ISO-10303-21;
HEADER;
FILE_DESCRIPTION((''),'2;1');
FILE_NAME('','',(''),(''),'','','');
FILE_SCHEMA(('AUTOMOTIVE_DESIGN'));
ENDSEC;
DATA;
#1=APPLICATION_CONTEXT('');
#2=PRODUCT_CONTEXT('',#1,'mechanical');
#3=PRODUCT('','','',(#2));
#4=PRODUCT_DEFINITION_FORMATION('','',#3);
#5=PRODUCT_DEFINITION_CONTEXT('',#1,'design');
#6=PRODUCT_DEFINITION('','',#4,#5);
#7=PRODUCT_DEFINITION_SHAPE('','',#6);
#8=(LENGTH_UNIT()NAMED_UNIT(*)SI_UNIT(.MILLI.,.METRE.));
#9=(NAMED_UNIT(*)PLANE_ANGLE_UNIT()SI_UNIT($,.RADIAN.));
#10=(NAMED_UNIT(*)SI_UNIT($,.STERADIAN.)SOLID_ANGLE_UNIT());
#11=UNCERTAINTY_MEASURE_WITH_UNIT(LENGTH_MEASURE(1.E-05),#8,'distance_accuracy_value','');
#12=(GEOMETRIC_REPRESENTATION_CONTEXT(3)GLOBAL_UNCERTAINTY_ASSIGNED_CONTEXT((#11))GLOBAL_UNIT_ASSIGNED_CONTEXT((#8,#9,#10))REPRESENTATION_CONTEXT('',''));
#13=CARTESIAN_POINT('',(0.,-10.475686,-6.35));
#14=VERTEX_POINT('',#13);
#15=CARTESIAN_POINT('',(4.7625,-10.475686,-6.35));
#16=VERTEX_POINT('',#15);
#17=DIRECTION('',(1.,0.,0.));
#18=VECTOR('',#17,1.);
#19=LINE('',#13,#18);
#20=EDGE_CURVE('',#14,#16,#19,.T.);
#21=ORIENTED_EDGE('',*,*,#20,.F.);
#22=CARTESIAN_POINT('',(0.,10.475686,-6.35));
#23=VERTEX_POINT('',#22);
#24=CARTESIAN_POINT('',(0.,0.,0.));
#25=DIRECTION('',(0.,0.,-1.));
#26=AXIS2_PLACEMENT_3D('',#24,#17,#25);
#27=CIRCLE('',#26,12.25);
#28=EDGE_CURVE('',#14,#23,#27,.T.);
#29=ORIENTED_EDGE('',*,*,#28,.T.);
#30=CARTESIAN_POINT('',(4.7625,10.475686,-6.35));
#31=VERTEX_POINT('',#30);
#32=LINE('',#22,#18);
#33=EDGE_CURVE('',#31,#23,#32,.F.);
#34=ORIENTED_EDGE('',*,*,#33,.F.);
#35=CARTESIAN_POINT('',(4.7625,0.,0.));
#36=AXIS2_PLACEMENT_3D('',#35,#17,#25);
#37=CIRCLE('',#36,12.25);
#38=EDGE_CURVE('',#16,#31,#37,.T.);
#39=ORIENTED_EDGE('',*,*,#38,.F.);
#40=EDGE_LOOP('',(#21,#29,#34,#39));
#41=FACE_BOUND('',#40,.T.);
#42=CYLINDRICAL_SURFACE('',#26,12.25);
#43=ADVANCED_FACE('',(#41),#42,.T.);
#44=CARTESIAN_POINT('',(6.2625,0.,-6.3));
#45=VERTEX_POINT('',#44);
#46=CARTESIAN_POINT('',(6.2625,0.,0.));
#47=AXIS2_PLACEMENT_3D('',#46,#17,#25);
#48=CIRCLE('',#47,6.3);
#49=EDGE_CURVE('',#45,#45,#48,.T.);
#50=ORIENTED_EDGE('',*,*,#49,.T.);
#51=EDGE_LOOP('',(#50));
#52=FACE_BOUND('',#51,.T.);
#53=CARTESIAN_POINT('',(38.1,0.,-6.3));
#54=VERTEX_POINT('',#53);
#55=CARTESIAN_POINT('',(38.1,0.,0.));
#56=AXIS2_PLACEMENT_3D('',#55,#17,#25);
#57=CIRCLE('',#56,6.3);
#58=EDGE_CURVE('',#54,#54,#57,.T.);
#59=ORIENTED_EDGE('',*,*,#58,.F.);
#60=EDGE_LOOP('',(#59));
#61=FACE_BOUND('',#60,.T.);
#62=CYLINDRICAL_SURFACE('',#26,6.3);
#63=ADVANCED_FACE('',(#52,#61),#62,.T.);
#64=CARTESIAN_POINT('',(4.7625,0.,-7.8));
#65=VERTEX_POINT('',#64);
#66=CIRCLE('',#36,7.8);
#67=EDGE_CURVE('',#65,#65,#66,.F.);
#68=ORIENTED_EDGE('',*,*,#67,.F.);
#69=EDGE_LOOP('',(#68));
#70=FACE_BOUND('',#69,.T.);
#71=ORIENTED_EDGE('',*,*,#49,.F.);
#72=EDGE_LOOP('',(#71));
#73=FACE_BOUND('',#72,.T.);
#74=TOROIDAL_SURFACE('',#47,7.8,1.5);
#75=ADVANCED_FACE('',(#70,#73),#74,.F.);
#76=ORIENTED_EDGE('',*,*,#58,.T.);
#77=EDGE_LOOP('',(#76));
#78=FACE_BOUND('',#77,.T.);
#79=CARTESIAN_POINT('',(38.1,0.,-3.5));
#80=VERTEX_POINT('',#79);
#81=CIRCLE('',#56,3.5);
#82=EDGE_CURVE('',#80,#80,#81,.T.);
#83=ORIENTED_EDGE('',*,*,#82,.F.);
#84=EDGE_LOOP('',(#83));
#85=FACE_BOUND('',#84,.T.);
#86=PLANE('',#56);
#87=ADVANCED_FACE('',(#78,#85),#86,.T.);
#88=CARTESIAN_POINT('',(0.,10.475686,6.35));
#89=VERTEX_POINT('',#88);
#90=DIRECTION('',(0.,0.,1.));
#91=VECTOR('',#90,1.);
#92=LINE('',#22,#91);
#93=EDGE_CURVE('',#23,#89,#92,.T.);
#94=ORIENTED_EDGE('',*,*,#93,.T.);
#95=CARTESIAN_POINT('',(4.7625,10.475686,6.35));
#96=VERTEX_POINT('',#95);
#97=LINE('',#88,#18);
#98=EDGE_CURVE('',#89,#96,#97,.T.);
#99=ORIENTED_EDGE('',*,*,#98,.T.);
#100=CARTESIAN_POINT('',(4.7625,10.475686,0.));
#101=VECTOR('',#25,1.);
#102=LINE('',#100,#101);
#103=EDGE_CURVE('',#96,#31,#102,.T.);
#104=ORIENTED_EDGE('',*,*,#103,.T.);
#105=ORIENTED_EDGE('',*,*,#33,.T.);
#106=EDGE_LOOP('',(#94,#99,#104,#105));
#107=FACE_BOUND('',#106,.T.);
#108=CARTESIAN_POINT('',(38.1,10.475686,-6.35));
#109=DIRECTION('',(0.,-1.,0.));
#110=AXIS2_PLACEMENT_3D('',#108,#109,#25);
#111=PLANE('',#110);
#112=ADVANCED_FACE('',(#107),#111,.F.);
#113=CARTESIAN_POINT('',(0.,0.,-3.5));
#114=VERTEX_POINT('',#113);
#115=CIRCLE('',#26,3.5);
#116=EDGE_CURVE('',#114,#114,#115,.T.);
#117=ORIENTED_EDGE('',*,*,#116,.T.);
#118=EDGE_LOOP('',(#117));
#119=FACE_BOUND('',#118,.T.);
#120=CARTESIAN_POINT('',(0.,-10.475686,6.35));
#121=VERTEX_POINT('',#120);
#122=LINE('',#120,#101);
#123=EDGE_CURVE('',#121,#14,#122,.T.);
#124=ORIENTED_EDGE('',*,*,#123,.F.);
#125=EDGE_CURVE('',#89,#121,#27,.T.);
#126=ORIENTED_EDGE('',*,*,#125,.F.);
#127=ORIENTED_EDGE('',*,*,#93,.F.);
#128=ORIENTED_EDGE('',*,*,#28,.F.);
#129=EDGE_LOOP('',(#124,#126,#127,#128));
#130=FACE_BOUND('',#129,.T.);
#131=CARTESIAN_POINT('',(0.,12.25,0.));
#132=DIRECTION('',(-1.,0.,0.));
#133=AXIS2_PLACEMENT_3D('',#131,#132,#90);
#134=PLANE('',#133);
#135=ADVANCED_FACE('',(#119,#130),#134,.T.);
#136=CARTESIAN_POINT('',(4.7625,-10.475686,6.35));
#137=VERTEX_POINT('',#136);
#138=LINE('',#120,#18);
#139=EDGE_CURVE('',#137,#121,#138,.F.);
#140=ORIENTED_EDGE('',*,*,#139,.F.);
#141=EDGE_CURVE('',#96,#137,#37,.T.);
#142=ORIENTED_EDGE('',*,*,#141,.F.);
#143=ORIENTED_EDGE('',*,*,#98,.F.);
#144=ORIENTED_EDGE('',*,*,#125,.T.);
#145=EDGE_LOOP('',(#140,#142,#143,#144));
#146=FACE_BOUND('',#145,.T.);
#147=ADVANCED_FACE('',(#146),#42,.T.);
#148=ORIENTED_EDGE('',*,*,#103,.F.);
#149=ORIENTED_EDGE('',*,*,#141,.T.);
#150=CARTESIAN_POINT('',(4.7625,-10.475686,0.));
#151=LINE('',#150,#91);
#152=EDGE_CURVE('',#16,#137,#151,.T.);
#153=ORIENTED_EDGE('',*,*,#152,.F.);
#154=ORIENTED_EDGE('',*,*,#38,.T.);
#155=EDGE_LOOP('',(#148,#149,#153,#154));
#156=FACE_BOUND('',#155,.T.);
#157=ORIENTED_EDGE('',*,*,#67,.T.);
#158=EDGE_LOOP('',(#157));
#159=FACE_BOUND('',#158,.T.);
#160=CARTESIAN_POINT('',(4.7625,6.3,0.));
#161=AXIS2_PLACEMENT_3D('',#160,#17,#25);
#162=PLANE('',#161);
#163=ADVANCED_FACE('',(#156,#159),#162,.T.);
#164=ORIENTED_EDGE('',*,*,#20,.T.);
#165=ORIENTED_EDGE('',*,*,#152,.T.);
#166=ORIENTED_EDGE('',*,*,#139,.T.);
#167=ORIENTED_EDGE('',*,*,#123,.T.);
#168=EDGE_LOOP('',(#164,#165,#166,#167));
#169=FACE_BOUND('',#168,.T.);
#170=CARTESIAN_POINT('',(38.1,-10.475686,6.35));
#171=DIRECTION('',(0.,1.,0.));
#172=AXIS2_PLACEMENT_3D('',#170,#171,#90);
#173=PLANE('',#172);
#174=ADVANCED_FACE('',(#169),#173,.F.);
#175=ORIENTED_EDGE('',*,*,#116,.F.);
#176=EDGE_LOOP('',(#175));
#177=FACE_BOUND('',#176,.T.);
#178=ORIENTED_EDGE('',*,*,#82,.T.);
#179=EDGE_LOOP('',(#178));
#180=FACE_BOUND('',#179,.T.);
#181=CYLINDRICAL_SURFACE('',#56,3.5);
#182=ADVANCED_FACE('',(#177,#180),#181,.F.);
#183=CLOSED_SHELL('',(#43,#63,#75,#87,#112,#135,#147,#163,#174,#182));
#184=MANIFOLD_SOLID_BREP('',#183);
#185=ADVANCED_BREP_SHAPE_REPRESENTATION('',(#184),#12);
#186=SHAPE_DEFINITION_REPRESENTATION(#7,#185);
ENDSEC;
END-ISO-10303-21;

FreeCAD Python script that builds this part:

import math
import FreeCAD as App
import Part
import Sketcher
from FreeCAD import Vector
Q = App.Units.Quantity


def edges_at(feature, points):
    """Names of the edges that pass closest to the given points."""
    edges = feature.Shape.Edges
    near = lambda p: min(range(len(edges)), key=lambda i: edges[i].distToShape(Part.Vertex(*p))[0])
    return sorted({f"Edge{near(p) + 1}" for p in points})

doc = App.newDocument("Part")
params = doc.addObject("Spreadsheet::Sheet", "Params")
for row, (alias, value) in enumerate([
    ("sketch1_width", "38.1 mm"),
    ("sketch1_height", "6.3 mm"),
    ("sketch1_height2", "5.95 mm"),
    ("revolution_angle", "360 deg"),
    ("fillet_radius", "1.5 mm"),
    ("sketch2_diameter", "7 mm"),
    ("hole_diameter", "7 mm"),
    ("sketch3_radius", "12.25 mm"),
    ("sketch3_height", "12.7 mm"),
], start=1):
    params.set(f"A{row}", alias)
    params.set(f"B{row}", "=" + value)
    params.setAlias(f"B{row}", alias)

body = doc.addObject("PartDesign::Body", "Body")

# Sketch on XY plane
sketch1 = doc.addObject("Sketcher::SketchObject", "Sketch")
body.addObject(sketch1)
sketch1.AttachmentSupport = (doc.XY_Plane, [""])
sketch1.MapMode = "FlatFace"
sketch1.addGeometry([
    Part.LineSegment(Vector(0, 0, 0), Vector(38.1, 0, 0)),  # 0
    Part.LineSegment(Vector(38.1, 0, 0), Vector(38.1, 6.3, 0)),  # 1
    Part.LineSegment(Vector(38.1, 6.3, 0), Vector(4.7625, 6.3, 0)),  # 2
    Part.LineSegment(Vector(4.7625, 6.3, 0), Vector(4.7625, 12.25, 0)),  # 3
    Part.LineSegment(Vector(4.7625, 12.25, 0), Vector(0, 12.25, 0)),  # 4
    Part.LineSegment(Vector(0, 12.25, 0), Vector(0, 0, 0)),  # 5
], False)
sketch1.addConstraint([
    Sketcher.Constraint("Coincident", 0, 2, 1, 1),
    Sketcher.Constraint("Coincident", 1, 2, 2, 1),
    Sketcher.Constraint("Coincident", 2, 2, 3, 1),
    Sketcher.Constraint("Coincident", 3, 2, 4, 1),
    Sketcher.Constraint("Coincident", 4, 2, 5, 1),
    Sketcher.Constraint("Coincident", 5, 2, 0, 1),
    Sketcher.Constraint("Horizontal", 0),
    Sketcher.Constraint("Vertical", 1),
    Sketcher.Constraint("Horizontal", 2),
    Sketcher.Constraint("Vertical", 3),
    Sketcher.Constraint("Horizontal", 4),
    Sketcher.Constraint("Vertical", 5),
    Sketcher.Constraint("Coincident", 5, 2, -1, 1),
    Sketcher.Constraint("DistanceX", 0, 1, 0, 2, Q("38.1 mm")),
    Sketcher.Constraint("DistanceY", 1, 1, 1, 2, Q("6.3 mm")),
    Sketcher.Constraint("DistanceY", 3, 1, 3, 2, Q("5.95 mm")),
    Sketcher.Constraint("DistanceX", 2, 2, 2, 1, Q("33.3375 mm")),
])
sketch1.setExpression("Constraints[13]", "Params.sketch1_width")
sketch1.setExpression("Constraints[14]", "Params.sketch1_height")
sketch1.setExpression("Constraints[15]", "Params.sketch1_height2")
revolution = doc.addObject("PartDesign::Revolution", "Revolution")
body.addObject(revolution)
revolution.Profile = sketch1
revolution.ReferenceAxis = (sketch1, ["H_Axis"])
revolution.setExpression("Angle", "Params.revolution_angle")
doc.recompute()

fillet = doc.addObject("PartDesign::Fillet", "Fillet")
body.addObject(fillet)
fillet.Base = (revolution, edges_at(revolution, [(4.763, 0, 6.3)]))
fillet.setExpression("Radius", "Params.fillet_radius")

# Sketch on YZ plane
sketch2 = doc.addObject("Sketcher::SketchObject", "Sketch001")
body.addObject(sketch2)
sketch2.AttachmentSupport = (doc.YZ_Plane, [""])
sketch2.MapMode = "FlatFace"
sketch2.AttachmentOffset = App.Placement(Vector(0, 0, 38.1), App.Rotation())
sketch2.addGeometry(Part.Circle(Vector(0, 0, 0), Vector(0, 0, 1), 3.5), False)
sketch2.addConstraint([
    Sketcher.Constraint("Coincident", 0, 3, -1, 1),
    Sketcher.Constraint("Diameter", 0, Q("7 mm")),
])
sketch2.setExpression("Constraints[1]", "Params.sketch2_diameter")
doc.recompute()
hole = doc.addObject("PartDesign::Hole", "Hole")
body.addObject(hole)
hole.Profile = sketch2
hole.ThreadType = "None"
hole.setExpression("Diameter", "Params.hole_diameter")
hole.DepthType = "ThroughAll"

# Sketch on YZ plane
sketch3 = doc.addObject("Sketcher::SketchObject", "Sketch002")
body.addObject(sketch3)
sketch3.AttachmentSupport = (doc.YZ_Plane, [""])
sketch3.MapMode = "FlatFace"
sketch3.addGeometry([
    Part.LineSegment(Vector(10.475686, -6.35, 0), Vector(10.475686, 6.35, 0)),
    Part.ArcOfCircle(Part.Circle(Vector(0, 0, 0), Vector(0, 0, 1), 12.25), math.radians(-31.2228), math.radians(31.2228)),
    Part.LineSegment(Vector(-10.475686, 6.35, 0), Vector(-10.475686, -6.35, 0)),
    Part.ArcOfCircle(Part.Circle(Vector(0, 0, 0), Vector(0, 0, 1), 12.25), math.radians(148.7772), math.radians(211.2228)),
], False)
sketch3.addConstraint([
    Sketcher.Constraint("Coincident", 0, 1, 1, 1),
    Sketcher.Constraint("Coincident", 1, 2, 0, 2),
    Sketcher.Constraint("Coincident", 2, 1, 3, 1),
    Sketcher.Constraint("Coincident", 3, 2, 2, 2),
    Sketcher.Constraint("Vertical", 0),
    Sketcher.Constraint("Vertical", 2),
    Sketcher.Constraint("Coincident", 1, 3, -1, 1),
    Sketcher.Constraint("Coincident", 3, 3, -1, 1),
    Sketcher.Constraint("Equal", 1, 3),
    Sketcher.Constraint("Horizontal", 1, 2, 2, 1),
    Sketcher.Constraint("Radius", 1, Q("12.25 mm")),
    Sketcher.Constraint("DistanceY", 0, 1, 0, 2, Q("12.7 mm")),
])
sketch3.setExpression("Constraints[10]", "Params.sketch3_radius")
sketch3.setExpression("Constraints[11]", "Params.sketch3_height")
pocket1 = doc.addObject("PartDesign::Pocket", "Pocket")
body.addObject(pocket1)
pocket1.Profile = sketch3
pocket1.Type = "ThroughAll"
pocket1.Reversed = True

doc.recompute()
